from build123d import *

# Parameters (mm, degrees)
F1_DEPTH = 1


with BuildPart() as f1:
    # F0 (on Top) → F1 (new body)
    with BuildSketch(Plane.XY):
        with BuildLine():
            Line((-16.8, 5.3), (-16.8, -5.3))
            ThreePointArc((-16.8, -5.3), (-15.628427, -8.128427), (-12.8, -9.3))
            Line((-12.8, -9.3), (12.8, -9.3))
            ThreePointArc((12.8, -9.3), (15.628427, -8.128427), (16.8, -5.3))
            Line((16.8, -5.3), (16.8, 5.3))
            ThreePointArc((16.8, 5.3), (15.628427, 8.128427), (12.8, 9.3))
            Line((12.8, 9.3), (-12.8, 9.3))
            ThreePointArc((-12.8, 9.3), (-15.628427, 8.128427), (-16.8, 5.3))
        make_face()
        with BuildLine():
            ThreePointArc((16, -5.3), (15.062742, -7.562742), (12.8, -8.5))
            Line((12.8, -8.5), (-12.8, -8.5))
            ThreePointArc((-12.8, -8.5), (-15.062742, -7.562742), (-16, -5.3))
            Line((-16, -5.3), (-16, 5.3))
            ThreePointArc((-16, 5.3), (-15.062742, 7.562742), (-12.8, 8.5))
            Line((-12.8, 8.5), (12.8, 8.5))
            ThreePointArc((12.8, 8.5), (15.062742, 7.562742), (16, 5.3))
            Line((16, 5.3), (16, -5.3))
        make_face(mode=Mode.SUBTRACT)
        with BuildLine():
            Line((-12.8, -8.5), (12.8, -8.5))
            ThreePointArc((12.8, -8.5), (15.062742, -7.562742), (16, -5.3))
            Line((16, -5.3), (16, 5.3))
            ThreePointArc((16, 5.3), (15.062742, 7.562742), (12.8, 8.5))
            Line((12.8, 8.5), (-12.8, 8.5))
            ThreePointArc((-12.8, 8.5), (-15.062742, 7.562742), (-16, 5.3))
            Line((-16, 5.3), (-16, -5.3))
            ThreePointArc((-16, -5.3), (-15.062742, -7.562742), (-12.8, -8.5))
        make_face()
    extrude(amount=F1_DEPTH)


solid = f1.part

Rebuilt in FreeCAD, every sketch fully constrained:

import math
import FreeCAD as App
import Part
import Sketcher
from FreeCAD import Vector
Q = App.Units.Quantity

doc = App.newDocument("Part")
body = doc.addObject("PartDesign::Body", "Body")

sketch1 = body.newObject("Sketcher::SketchObject", "Sketch")
sketch1.AttachmentSupport = (doc.getObject("XY_Plane"), [""])
sketch1.MapMode = "FlatFace"
sketch1.addGeometry(Part.LineSegment(Vector(-16.8, 5.3, 0), Vector(-16.8, -5.3, 0)), False)
sketch1.addGeometry(Part.ArcOfCircle(Part.Circle(Vector(-12.8, -5.3, 0), Vector(0, 0, 1), 4), math.radians(-180), math.radians(-90)), False)
sketch1.addGeometry(Part.LineSegment(Vector(-12.8, -9.3, 0), Vector(12.8, -9.3, 0)), False)
sketch1.addGeometry(Part.ArcOfCircle(Part.Circle(Vector(12.8, -5.3, 0), Vector(0, 0, 1), 4), math.radians(-90), math.radians(0)), False)
sketch1.addGeometry(Part.LineSegment(Vector(16.8, -5.3, 0), Vector(16.8, 5.3, 0)), False)
sketch1.addGeometry(Part.ArcOfCircle(Part.Circle(Vector(12.8, 5.3, 0), Vector(0, 0, 1), 4), math.radians(0), math.radians(90)), False)
sketch1.addGeometry(Part.LineSegment(Vector(12.8, 9.3, 0), Vector(-12.8, 9.3, 0)), False)
sketch1.addGeometry(Part.ArcOfCircle(Part.Circle(Vector(-12.8, 5.3, 0), Vector(0, 0, 1), 4), math.radians(90), math.radians(180)), False)
sketch1.addConstraint(Sketcher.Constraint("Tangent", 0, 2, 1, 1))
sketch1.addConstraint(Sketcher.Constraint("Tangent", 1, 2, 2, 1))
sketch1.addConstraint(Sketcher.Constraint("Tangent", 2, 2, 3, 1))
sketch1.addConstraint(Sketcher.Constraint("Tangent", 3, 2, 4, 1))
sketch1.addConstraint(Sketcher.Constraint("Tangent", 4, 2, 5, 1))
sketch1.addConstraint(Sketcher.Constraint("Tangent", 5, 2, 6, 1))
sketch1.addConstraint(Sketcher.Constraint("Tangent", 6, 2, 7, 1))
sketch1.addConstraint(Sketcher.Constraint("Tangent", 7, 2, 0, 1))
sketch1.addConstraint(Sketcher.Constraint("Vertical", 0))
sketch1.addConstraint(Sketcher.Constraint("Horizontal", 2))
sketch1.addConstraint(Sketcher.Constraint("Vertical", 4))
sketch1.addConstraint(Sketcher.Constraint("Horizontal", 6))
sketch1.addConstraint(Sketcher.Constraint("Equal", 1, 3))
sketch1.addConstraint(Sketcher.Constraint("Equal", 3, 5))
sketch1.addConstraint(Sketcher.Constraint("Equal", 5, 7))
sketch1.addConstraint(Sketcher.Constraint("Symmetric", 1, 3, 5, 3, -1, 1))
sketch1.addConstraint(Sketcher.Constraint("Radius", 1, Q("4 mm")))
sketch1.addConstraint(Sketcher.Constraint("DistanceX", 2, 1, 2, 2, Q("25.6 mm")))
sketch1.addConstraint(Sketcher.Constraint("DistanceY", 0, 2, 0, 1, Q("10.6 mm")))
pad1 = body.newObject("PartDesign::Pad", "Pad")
pad1.Profile = sketch1
pad1.Length = 1

doc.recompute()
